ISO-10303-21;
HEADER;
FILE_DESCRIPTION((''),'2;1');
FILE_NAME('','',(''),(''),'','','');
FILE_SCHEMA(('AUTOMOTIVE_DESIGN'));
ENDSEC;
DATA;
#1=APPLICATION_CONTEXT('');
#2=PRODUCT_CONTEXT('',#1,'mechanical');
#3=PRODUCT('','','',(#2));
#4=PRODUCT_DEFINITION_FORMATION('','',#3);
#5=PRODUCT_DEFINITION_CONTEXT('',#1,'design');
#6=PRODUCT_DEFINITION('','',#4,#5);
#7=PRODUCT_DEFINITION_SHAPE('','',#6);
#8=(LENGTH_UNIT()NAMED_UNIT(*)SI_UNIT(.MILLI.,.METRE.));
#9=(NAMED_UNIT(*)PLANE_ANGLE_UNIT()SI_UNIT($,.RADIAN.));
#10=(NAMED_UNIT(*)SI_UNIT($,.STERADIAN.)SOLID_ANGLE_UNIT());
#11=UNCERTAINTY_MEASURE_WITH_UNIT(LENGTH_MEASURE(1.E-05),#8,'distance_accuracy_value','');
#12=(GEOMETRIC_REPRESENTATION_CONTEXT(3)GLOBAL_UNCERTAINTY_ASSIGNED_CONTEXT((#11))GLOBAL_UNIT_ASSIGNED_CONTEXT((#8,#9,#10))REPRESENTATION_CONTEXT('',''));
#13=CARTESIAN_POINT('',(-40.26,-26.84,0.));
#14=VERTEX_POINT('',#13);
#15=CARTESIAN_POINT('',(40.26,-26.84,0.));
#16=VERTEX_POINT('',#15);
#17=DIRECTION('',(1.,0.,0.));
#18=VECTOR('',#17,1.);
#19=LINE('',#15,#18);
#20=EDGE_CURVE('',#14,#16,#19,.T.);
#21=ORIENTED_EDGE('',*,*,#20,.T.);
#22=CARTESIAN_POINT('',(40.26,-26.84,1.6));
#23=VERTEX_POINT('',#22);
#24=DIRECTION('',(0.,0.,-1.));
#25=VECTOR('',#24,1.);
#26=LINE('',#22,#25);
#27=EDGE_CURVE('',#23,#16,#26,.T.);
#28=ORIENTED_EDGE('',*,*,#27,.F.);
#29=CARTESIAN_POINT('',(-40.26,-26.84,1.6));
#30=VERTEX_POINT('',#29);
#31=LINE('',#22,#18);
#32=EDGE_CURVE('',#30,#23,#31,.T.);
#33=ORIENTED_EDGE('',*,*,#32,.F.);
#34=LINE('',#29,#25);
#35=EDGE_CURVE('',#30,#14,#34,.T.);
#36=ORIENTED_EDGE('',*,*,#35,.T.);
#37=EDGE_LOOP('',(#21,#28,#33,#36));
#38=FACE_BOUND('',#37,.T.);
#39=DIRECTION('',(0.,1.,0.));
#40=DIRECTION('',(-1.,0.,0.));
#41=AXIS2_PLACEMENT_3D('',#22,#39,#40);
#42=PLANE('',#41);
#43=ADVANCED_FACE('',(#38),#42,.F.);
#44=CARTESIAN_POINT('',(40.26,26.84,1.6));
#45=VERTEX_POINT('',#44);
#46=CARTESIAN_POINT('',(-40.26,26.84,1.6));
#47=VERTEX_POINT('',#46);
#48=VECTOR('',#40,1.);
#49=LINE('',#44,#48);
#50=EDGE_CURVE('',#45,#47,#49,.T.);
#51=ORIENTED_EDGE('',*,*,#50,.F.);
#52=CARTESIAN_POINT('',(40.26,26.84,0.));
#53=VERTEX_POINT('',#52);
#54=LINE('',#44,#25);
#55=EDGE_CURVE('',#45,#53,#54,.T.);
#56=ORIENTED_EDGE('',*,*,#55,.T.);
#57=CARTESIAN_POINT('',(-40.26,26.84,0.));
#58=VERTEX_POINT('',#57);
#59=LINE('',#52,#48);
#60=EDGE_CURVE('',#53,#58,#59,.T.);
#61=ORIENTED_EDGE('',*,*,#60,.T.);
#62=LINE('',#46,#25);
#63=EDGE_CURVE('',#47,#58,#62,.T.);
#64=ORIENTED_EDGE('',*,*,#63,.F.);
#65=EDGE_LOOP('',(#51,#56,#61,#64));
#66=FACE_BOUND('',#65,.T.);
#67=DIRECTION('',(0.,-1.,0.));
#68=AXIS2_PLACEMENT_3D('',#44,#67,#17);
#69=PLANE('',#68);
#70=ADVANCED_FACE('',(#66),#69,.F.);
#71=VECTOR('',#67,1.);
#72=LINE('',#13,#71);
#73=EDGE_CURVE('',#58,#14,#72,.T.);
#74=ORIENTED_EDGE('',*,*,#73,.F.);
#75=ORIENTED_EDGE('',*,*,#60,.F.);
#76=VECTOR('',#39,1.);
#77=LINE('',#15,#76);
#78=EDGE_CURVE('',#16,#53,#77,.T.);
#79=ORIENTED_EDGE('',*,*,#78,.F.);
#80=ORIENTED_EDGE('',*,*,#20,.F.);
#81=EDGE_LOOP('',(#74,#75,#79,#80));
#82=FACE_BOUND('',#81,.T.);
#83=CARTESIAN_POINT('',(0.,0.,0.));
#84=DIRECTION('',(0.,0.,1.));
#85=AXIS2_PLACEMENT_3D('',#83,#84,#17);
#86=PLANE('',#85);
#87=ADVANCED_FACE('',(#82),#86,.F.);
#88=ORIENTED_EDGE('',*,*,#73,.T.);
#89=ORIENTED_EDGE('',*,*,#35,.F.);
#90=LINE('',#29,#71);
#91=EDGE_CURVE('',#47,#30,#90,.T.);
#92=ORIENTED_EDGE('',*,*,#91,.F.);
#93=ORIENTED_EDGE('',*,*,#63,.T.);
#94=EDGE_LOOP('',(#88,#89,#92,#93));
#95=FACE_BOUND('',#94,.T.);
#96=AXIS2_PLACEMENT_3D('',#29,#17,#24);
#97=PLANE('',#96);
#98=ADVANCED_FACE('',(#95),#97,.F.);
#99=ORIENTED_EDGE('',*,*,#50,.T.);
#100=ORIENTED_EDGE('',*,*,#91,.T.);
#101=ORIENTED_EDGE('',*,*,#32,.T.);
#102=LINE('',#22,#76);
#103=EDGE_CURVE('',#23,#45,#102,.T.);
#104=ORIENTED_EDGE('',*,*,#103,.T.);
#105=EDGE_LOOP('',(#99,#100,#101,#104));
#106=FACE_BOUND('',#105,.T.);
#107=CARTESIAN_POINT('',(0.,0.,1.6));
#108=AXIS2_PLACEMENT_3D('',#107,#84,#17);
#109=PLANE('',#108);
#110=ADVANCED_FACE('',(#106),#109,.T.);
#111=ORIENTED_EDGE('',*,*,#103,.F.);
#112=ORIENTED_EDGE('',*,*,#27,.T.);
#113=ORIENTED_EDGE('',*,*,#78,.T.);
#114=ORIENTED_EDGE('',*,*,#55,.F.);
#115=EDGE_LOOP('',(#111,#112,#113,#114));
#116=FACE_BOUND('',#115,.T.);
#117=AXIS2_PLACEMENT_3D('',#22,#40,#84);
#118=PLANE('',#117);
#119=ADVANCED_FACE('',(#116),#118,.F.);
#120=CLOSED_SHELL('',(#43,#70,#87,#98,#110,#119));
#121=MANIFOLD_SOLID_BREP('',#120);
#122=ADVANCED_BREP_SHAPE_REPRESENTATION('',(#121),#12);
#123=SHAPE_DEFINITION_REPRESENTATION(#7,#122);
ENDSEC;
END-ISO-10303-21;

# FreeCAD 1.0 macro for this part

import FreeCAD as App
import Part
import Sketcher

V = App.Vector


def add_polygon(sketch, points):
    """Adds a closed chain of lines whose ends are joined by coincident constraints."""
    first, n = sketch.GeometryCount, len(points)
    for a, b in zip(points, points[1:] + points[:1]):
        sketch.addGeometry(Part.LineSegment(App.Vector(*a, 0), App.Vector(*b, 0)), False)
    for i in range(n):
        sketch.addConstraint(Sketcher.Constraint("Coincident", first + i, 2, first + (i + 1) % n, 1))

doc = App.newDocument("Part")
params = doc.addObject("Spreadsheet::Sheet", "Params")
for row, (alias, value) in enumerate([
    ("sketch1_width", "80.52 mm"),
    ("sketch1_height", "53.68 mm"),
    ("pad1_length", "1.6 mm"),
], start=1):
    params.set(f"A{row}", alias)
    params.set(f"B{row}", "=" + value)
    params.setAlias(f"B{row}", alias)

body = doc.addObject("PartDesign::Body", "Body")

sketch1 = doc.addObject("Sketcher::SketchObject", "Sketch")
body.addObject(sketch1)
sketch1.AttachmentSupport = (doc.XY_Plane, [""])
sketch1.MapMode = "FlatFace"
add_polygon(sketch1, [(-40, 27), (-40, -27), (40, -27), (40, 27)])
sketch1.addConstraint(Sketcher.Constraint("Vertical", 0))
sketch1.addConstraint(Sketcher.Constraint("Horizontal", 1))
sketch1.addConstraint(Sketcher.Constraint("Vertical", 2))
sketch1.addConstraint(Sketcher.Constraint("Horizontal", 3))
sketch1.addConstraint(Sketcher.Constraint("Symmetric", 0, 2, 2, 2, -1, 1))
sketch1.addConstraint(Sketcher.Constraint("DistanceX", 1, 1, 1, 2, 80.52))
sketch1.addConstraint(Sketcher.Constraint("DistanceY", 0, 2, 0, 1, 53.68))
sketch1.setExpression("Constraints[9]", "Params.sketch1_width")
sketch1.setExpression("Constraints[10]", "Params.sketch1_height")
pad1 = doc.addObject("PartDesign::Pad", "Pad")
body.addObject(pad1)
pad1.Profile = sketch1
pad1.setExpression("Length", "Params.pad1_length")

doc.recompute()
